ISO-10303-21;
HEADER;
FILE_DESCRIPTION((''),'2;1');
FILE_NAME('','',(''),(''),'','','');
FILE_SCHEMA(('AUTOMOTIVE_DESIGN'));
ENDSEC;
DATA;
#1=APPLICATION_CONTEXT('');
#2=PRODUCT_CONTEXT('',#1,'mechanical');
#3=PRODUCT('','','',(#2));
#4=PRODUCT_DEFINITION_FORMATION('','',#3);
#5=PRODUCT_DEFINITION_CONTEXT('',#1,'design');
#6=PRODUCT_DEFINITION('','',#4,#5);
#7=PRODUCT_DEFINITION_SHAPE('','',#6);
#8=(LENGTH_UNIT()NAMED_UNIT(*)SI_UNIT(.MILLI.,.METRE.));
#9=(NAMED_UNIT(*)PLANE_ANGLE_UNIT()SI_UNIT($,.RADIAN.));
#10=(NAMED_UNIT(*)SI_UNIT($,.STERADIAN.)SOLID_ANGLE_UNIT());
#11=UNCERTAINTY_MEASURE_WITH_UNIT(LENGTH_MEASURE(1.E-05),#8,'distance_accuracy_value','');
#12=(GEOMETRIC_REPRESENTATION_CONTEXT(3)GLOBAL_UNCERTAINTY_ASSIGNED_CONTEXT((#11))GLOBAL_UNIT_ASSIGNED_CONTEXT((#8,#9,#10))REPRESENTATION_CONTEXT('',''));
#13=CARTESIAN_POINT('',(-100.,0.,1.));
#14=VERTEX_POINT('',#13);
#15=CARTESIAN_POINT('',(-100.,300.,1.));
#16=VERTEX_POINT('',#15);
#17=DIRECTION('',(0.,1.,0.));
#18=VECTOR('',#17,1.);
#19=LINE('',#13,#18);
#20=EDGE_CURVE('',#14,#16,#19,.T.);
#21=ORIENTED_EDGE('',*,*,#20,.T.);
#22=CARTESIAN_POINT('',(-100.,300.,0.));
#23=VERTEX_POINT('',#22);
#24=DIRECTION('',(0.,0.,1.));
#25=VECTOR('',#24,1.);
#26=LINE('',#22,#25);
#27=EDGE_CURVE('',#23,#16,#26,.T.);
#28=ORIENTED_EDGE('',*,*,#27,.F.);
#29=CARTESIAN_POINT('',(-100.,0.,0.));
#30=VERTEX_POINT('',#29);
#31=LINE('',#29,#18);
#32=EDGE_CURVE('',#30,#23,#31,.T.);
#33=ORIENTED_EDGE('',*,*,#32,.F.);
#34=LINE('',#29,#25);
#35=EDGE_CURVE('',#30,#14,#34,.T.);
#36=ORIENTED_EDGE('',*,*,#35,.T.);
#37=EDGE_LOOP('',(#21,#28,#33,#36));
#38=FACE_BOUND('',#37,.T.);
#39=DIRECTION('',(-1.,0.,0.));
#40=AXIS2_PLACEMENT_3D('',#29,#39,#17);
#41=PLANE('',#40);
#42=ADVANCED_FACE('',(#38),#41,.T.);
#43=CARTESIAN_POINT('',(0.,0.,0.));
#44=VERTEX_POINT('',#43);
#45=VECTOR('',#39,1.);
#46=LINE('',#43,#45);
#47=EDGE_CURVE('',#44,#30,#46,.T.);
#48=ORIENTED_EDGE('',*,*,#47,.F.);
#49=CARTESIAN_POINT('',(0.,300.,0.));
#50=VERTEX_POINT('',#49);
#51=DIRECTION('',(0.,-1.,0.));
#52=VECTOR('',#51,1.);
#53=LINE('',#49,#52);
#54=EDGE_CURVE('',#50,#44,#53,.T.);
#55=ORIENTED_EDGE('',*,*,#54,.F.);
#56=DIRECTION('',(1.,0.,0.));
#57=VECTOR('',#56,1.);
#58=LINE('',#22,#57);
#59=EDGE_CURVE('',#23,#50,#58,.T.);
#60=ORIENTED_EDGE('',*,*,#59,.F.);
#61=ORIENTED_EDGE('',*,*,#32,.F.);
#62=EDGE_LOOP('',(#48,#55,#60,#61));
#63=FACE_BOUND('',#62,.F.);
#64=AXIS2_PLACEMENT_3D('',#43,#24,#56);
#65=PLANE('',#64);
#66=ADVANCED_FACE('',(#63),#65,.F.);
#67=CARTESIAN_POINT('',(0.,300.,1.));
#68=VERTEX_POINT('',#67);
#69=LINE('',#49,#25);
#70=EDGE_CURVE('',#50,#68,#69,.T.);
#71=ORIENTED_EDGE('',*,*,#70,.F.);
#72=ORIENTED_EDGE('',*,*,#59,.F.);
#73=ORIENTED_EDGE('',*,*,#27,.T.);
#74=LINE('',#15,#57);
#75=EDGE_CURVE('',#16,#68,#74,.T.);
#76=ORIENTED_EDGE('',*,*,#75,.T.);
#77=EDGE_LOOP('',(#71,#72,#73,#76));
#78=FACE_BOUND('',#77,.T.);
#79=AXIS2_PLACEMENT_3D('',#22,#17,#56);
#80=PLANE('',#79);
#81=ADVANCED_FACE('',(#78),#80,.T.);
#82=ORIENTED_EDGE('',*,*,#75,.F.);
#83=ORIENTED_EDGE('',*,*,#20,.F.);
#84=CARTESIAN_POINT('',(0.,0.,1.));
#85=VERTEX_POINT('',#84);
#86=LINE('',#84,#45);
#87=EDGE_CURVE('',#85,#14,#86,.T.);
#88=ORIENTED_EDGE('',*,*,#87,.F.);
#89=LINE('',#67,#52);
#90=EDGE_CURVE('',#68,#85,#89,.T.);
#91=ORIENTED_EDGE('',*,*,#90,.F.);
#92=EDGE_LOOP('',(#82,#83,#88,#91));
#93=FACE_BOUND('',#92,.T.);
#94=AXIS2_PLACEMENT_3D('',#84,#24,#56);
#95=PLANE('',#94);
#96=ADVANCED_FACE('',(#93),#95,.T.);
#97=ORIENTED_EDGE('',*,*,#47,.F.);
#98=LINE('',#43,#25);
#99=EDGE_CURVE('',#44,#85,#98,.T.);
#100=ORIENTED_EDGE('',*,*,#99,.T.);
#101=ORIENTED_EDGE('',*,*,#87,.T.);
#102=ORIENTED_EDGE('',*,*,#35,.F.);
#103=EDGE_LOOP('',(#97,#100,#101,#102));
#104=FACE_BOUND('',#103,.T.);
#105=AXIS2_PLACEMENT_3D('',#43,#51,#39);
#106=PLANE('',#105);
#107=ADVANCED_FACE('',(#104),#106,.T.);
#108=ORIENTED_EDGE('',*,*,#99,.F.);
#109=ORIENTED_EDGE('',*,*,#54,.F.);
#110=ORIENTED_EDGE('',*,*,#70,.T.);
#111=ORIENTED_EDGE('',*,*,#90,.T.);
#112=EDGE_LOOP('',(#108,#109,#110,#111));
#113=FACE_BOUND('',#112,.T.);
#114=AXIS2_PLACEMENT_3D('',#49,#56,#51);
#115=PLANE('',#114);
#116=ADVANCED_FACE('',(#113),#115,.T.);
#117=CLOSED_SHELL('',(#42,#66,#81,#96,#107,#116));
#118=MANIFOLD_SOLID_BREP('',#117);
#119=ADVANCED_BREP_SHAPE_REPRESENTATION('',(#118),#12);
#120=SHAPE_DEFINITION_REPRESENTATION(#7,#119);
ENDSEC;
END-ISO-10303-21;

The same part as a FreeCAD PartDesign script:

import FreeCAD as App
import Part
import Sketcher
from FreeCAD import Vector

doc = App.newDocument("Part")
body = doc.addObject("PartDesign::Body", "Body")

sketch1 = body.newObject("Sketcher::SketchObject", "Sketch")
sketch1.AttachmentSupport = (doc.getObject("XY_Plane"), [""])
sketch1.MapMode = "FlatFace"
sketch1.addGeometry([
    Part.LineSegment(Vector(-100, 0, 0), Vector(0, 0, 0)),
    Part.LineSegment(Vector(0, 0, 0), Vector(0, 300, 0)),
    Part.LineSegment(Vector(0, 300, 0), Vector(-100, 300, 0)),
    Part.LineSegment(Vector(-100, 300, 0), Vector(-100, 0, 0)),
], False)
sketch1.addConstraint([
    Sketcher.Constraint("Coincident", 0, 2, 1, 1),
    Sketcher.Constraint("Coincident", 1, 2, 2, 1),
    Sketcher.Constraint("Coincident", 2, 2, 3, 1),
    Sketcher.Constraint("Coincident", 3, 2, 0, 1),
    Sketcher.Constraint("Horizontal", 0),
    Sketcher.Constraint("Vertical", 1),
    Sketcher.Constraint("Horizontal", 2),
    Sketcher.Constraint("Vertical", 3),
    Sketcher.Constraint("Coincident", 0, 2, -1, 1),
    Sketcher.Constraint("DistanceX", 0, 1, 0, 2, 100.0),
    Sketcher.Constraint("DistanceY", 1, 1, 1, 2, 300.0),
])
pad1 = body.newObject("PartDesign::Pad", "Pad")
pad1.Profile = sketch1
pad1.Length = 1

doc.recompute()
